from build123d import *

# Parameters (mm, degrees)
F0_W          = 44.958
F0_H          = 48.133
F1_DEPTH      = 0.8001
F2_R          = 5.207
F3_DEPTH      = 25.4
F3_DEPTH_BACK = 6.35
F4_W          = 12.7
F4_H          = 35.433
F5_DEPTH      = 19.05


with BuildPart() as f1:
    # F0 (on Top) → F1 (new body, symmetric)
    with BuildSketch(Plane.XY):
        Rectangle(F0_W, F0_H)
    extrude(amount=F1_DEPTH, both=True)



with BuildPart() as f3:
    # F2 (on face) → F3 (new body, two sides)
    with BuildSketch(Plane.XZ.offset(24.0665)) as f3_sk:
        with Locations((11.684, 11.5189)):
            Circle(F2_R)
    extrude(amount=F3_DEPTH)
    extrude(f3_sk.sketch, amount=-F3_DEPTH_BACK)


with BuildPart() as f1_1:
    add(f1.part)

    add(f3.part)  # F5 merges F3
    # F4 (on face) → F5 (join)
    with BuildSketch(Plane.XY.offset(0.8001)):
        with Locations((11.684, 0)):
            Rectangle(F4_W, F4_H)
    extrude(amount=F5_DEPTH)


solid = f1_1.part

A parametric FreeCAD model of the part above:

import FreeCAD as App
import Part
import Sketcher
Q = App.Units.Quantity


def add_polygon(sketch, points):
    """Adds a closed chain of lines whose ends are joined by coincident constraints."""
    first, n = sketch.GeometryCount, len(points)
    for a, b in zip(points, points[1:] + points[:1]):
        sketch.addGeometry(Part.LineSegment(App.Vector(*a, 0), App.Vector(*b, 0)), False)
    for i in range(n):
        sketch.addConstraint(Sketcher.Constraint("Coincident", first + i, 2, first + (i + 1) % n, 1))

doc = App.newDocument("Part")
body = doc.addObject("PartDesign::Body", "Body")

sketch1 = body.newObject("Sketcher::SketchObject", "Sketch")
sketch1.AttachmentSupport = (doc.getObject("XY_Plane"), [""])
sketch1.MapMode = "FlatFace"
add_polygon(sketch1, [(-22, 24), (-22, -24), (22, -24), (22, 24)])
sketch1.addConstraint(Sketcher.Constraint("Vertical", 0))
sketch1.addConstraint(Sketcher.Constraint("Horizontal", 1))
sketch1.addConstraint(Sketcher.Constraint("Vertical", 2))
sketch1.addConstraint(Sketcher.Constraint("Horizontal", 3))
sketch1.addConstraint(Sketcher.Constraint("Symmetric", 0, 2, 2, 2, -1, 1))
sketch1.addConstraint(Sketcher.Constraint("DistanceX", 1, 1, 1, 2, Q("1.77 in")))
sketch1.addConstraint(Sketcher.Constraint("DistanceY", 0, 2, 0, 1, Q("1.895 in")))
pad1 = body.newObject("PartDesign::Pad", "Pad")
pad1.Profile = sketch1
pad1.Length = Q("0.063 in")
pad1.Midplane = True
body2 = doc.addObject("PartDesign::Body", "Body001")

sketch2 = body2.newObject("Sketcher::SketchObject", "Sketch001")
sketch2.AttachmentSupport = (doc.getObject("XZ_Plane001"), [""])
sketch2.MapMode = "FlatFace"
sketch2.AttachmentOffset = App.Placement(App.Vector(0, 0, 0.9475 * 25.4), App.Rotation())
sketch2.addGeometry(Part.Circle(App.Vector(12, 12, 0), App.Vector(0, 0, 1), 5), False)
sketch2.addConstraint(Sketcher.Constraint("Diameter", 0, Q("0.41 in")))
sketch2.addConstraint(Sketcher.Constraint("DistanceX", -1, 1, 0, 3, Q("0.46 in")))
sketch2.addConstraint(Sketcher.Constraint("DistanceY", -1, 1, 0, 3, Q("0.4535 in")))
pad2 = body2.newObject("PartDesign::Pad", "Pad001")
pad2.Profile = sketch2
pad2.Type = "TwoLengths"
pad2.Length = Q("1 in")
pad2.Length2 = Q("0.25 in")
body.AllowCompound = True
doc.recompute()

boolean = body.newObject("PartDesign::Boolean", "Boolean")
boolean.Type = "Fuse"
boolean.addObjects([body2])

sketch3 = body.newObject("Sketcher::SketchObject", "Sketch002")
sketch3.AttachmentSupport = (doc.getObject("XY_Plane"), [""])
sketch3.MapMode = "FlatFace"
sketch3.AttachmentOffset = App.Placement(App.Vector(0, 0, 0.0315 * 25.4), App.Rotation())
add_polygon(sketch3, [(5, 18), (5, -18), (18, -18), (18, 18)])
sketch3.addConstraint(Sketcher.Constraint("Vertical", 0))
sketch3.addConstraint(Sketcher.Constraint("Horizontal", 1))
sketch3.addConstraint(Sketcher.Constraint("Vertical", 2))
sketch3.addConstraint(Sketcher.Constraint("Horizontal", 3))
sketch3.addConstraint(Sketcher.Constraint("DistanceX", 1, 1, 1, 2, Q("0.5 in")))
sketch3.addConstraint(Sketcher.Constraint("DistanceY", 0, 2, 0, 1, Q("1.395 in")))
sketch3.addConstraint(Sketcher.Constraint("DistanceX", -1, 1, 0, 2, Q("0.21 in")))
sketch3.addConstraint(Sketcher.Constraint("DistanceY", 0, 2, -1, 1, Q("0.6975 in")))
pad3 = body.newObject("PartDesign::Pad", "Pad002")
pad3.Profile = sketch3
pad3.Length = Q("0.75 in")

doc.recompute()
